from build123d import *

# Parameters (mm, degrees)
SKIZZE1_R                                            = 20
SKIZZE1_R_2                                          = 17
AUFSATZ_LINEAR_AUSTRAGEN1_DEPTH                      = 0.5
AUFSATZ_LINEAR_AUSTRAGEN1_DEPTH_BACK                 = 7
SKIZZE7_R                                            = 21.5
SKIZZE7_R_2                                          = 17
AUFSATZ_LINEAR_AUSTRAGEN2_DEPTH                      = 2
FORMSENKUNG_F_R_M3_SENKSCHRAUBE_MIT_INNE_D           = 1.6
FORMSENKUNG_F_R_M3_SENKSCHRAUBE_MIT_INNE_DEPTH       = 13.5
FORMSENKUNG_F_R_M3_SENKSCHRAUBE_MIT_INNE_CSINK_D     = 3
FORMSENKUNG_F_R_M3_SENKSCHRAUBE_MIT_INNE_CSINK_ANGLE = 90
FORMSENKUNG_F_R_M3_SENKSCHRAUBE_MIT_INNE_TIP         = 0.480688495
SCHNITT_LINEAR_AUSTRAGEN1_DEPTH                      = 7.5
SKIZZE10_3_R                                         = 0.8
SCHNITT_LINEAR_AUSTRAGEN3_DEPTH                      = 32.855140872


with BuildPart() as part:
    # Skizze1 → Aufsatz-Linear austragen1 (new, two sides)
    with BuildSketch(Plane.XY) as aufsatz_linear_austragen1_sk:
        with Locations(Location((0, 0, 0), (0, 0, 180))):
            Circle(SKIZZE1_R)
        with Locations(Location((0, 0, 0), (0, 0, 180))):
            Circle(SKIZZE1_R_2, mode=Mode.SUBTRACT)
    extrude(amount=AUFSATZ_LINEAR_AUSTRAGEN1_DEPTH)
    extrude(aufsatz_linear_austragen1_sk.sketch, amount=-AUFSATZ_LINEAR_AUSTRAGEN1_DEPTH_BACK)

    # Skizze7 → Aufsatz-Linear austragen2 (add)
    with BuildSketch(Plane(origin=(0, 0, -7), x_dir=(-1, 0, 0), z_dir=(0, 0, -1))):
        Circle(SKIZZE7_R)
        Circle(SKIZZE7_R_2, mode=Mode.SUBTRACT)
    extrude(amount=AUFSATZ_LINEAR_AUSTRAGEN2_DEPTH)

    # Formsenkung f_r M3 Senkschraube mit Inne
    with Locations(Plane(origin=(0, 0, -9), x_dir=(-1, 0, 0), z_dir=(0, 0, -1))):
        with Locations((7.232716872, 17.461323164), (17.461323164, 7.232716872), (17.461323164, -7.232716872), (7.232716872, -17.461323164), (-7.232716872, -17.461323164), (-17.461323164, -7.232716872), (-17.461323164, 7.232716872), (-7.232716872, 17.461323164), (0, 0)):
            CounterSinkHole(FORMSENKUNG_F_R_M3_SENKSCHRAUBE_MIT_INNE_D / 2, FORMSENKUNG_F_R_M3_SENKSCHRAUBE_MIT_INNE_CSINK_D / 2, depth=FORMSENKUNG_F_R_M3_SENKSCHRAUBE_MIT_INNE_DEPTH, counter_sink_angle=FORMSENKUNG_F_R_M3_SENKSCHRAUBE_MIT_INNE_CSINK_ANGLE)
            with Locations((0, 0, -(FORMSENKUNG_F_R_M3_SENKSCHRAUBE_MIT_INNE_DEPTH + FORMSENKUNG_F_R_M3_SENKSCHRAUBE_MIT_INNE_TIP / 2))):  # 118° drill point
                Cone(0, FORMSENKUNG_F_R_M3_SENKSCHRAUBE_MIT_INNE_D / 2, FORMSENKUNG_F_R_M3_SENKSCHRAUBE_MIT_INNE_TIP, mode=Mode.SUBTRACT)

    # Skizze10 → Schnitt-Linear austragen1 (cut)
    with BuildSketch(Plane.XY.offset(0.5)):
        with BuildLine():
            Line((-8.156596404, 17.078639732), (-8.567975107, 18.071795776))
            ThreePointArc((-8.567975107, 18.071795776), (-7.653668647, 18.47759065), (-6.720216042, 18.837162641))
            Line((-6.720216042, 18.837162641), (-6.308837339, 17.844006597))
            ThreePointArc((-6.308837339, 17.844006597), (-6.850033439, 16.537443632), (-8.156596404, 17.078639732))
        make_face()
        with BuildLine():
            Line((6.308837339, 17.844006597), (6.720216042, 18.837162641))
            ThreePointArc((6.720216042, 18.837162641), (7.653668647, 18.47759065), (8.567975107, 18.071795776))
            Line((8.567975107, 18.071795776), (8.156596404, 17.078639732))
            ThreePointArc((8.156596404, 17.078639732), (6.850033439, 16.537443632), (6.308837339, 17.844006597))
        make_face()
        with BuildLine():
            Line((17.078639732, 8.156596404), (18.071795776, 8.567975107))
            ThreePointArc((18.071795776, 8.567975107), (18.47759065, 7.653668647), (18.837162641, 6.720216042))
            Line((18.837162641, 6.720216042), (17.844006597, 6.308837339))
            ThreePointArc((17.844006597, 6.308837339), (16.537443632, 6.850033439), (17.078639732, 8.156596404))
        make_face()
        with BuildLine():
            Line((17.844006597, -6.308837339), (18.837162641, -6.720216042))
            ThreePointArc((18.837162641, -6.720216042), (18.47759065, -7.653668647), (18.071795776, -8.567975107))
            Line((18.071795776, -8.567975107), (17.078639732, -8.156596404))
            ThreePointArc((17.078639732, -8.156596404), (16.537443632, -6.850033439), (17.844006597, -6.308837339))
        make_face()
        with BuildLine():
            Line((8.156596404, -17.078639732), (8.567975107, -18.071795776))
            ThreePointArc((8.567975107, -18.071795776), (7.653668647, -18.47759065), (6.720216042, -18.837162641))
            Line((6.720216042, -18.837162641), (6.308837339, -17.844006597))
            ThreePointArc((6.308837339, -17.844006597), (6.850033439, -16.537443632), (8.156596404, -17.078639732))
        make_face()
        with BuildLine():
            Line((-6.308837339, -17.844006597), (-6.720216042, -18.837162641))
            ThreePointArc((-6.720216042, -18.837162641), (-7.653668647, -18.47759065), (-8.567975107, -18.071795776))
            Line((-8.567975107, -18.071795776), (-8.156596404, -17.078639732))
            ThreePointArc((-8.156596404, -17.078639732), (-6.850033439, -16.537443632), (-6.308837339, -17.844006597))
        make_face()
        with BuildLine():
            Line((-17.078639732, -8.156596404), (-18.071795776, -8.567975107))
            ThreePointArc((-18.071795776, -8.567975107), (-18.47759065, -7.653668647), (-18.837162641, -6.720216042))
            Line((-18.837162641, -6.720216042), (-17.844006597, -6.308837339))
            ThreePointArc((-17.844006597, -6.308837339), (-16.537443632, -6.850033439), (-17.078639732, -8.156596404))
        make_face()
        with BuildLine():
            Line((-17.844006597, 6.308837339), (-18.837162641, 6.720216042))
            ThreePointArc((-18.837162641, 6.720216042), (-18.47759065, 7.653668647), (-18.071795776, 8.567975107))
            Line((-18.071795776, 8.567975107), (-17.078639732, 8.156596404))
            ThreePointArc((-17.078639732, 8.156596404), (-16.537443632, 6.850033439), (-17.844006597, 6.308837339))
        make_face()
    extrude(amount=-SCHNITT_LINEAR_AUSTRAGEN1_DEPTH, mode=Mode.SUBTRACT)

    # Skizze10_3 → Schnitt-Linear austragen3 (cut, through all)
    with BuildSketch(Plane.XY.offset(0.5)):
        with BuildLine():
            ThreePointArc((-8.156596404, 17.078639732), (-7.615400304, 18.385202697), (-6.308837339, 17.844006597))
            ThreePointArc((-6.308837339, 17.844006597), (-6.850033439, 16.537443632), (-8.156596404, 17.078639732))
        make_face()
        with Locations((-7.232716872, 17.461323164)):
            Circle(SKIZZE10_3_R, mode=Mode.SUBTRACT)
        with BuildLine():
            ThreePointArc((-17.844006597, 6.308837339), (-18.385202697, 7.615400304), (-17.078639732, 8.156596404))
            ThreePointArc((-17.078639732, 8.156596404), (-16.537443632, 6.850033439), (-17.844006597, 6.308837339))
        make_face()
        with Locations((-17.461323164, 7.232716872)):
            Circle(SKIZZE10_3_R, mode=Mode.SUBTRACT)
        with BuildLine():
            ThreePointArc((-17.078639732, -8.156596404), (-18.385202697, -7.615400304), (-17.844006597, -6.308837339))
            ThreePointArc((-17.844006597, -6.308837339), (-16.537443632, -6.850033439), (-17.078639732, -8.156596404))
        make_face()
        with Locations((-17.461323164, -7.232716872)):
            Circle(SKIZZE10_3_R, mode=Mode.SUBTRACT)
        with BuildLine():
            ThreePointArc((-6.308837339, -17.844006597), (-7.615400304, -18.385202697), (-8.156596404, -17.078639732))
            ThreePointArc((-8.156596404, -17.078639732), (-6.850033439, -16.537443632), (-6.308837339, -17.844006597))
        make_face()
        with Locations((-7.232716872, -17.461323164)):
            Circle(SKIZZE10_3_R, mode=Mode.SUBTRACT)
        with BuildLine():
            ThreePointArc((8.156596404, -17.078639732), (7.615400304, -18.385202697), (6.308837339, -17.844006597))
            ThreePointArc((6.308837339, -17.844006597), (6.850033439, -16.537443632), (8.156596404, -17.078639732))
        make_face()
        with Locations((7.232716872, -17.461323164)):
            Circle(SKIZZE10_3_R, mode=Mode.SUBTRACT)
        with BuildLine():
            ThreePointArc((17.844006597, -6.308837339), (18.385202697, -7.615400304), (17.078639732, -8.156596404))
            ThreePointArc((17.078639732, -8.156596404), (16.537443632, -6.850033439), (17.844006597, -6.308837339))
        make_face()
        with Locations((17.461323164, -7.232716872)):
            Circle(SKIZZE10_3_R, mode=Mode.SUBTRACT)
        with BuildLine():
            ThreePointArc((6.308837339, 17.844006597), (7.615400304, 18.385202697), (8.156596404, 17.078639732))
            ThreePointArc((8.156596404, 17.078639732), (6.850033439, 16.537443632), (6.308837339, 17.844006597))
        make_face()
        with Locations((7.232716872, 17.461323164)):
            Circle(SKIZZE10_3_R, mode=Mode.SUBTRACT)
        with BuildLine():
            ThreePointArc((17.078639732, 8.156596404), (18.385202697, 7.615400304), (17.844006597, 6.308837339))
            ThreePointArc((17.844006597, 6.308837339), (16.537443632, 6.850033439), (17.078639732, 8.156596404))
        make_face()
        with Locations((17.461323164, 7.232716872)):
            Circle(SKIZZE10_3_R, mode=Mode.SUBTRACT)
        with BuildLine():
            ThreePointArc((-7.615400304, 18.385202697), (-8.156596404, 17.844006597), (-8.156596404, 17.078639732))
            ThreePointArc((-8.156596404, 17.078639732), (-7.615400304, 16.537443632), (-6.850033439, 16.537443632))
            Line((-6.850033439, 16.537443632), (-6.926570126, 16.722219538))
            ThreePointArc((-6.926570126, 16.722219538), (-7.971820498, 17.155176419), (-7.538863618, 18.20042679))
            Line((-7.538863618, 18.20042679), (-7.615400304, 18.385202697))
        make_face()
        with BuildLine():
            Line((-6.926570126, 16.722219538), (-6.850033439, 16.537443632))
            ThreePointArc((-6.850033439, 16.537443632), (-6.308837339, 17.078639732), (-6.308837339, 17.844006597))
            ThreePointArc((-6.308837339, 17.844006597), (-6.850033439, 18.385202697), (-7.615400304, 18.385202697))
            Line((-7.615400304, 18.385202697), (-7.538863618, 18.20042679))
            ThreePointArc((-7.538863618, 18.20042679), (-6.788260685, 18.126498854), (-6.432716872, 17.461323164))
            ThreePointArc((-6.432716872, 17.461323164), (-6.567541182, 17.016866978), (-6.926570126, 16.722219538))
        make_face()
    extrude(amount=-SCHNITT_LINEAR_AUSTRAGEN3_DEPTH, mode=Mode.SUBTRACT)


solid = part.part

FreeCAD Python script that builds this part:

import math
import FreeCAD as App
import Part
import Sketcher
Q = App.Units.Quantity

doc = App.newDocument("Part")
body = doc.addObject("PartDesign::Body", "Body")

# Sketch on XY plane
sketch1 = body.newObject("Sketcher::SketchObject", "Sketch")
sketch1.AttachmentSupport = (doc.getObject("XY_Plane"), [""])
sketch1.MapMode = "FlatFace"
sketch1.addGeometry([
    Part.Circle(App.Vector(0, 0, 0), App.Vector(0, 0, 1), 20),
    Part.Circle(App.Vector(0, 0, 0), App.Vector(0, 0, 1), 17),
], False)
sketch1.addConstraint([
    Sketcher.Constraint("Coincident", 0, 3, -1, 1),
    Sketcher.Constraint("Coincident", 1, 3, -1, 1),
    Sketcher.Constraint("Diameter", 0, Q("40 mm")),
    Sketcher.Constraint("Diameter", 1, Q("34 mm")),
])
pad1 = body.newObject("PartDesign::Pad", "Pad")
pad1.Profile = sketch1
pad1.Type = "TwoLengths"
pad1.Length = 0.5
pad1.Length2 = 7

# Sketch on XY plane
sketch2 = body.newObject("Sketcher::SketchObject", "Sketch001")
sketch2.AttachmentSupport = (doc.getObject("XY_Plane"), [""])
sketch2.MapMode = "FlatFace"
sketch2.AttachmentOffset = App.Placement(App.Vector(0, 0, -7), App.Rotation())
sketch2.addGeometry([
    Part.Circle(App.Vector(0, 0, 0), App.Vector(0, 0, 1), 22),
    Part.Circle(App.Vector(0, 0, 0), App.Vector(0, 0, 1), 17),
], False)
sketch2.addConstraint([
    Sketcher.Constraint("Coincident", 0, 3, -1, 1),
    Sketcher.Constraint("Coincident", 1, 3, -1, 1),
    Sketcher.Constraint("Diameter", 0, Q("43 mm")),
    Sketcher.Constraint("Diameter", 1, Q("34 mm")),
])
pad2 = body.newObject("PartDesign::Pad", "Pad001")
pad2.Profile = sketch2
pad2.Length = 2
pad2.Reversed = True

# Sketch on XY plane
sketch3 = body.newObject("Sketcher::SketchObject", "Sketch002")
sketch3.AttachmentSupport = (doc.getObject("XY_Plane"), [""])
sketch3.MapMode = "FlatFace"
sketch3.AttachmentOffset = App.Placement(App.Vector(0, 0, -9), App.Rotation())
sketch3.addGeometry([
    Part.Circle(App.Vector(-7.2, 17.5, 0), App.Vector(0, 0, 1), 0.8),  # 0
    Part.Circle(App.Vector(-17.5, 7.2, 0), App.Vector(0, 0, 1), 0.8),  # 1
    Part.Circle(App.Vector(-17.5, -7.2, 0), App.Vector(0, 0, 1), 0.8),  # 2
    Part.Circle(App.Vector(-7.2, -17.5, 0), App.Vector(0, 0, 1), 0.8),  # 3
    Part.Circle(App.Vector(7.2, -17.5, 0), App.Vector(0, 0, 1), 0.8),  # 4
    Part.Circle(App.Vector(17.5, -7.2, 0), App.Vector(0, 0, 1), 0.8),  # 5
    Part.Circle(App.Vector(17.5, 7.2, 0), App.Vector(0, 0, 1), 0.8),  # 6
    Part.Circle(App.Vector(7.2, 17.5, 0), App.Vector(0, 0, 1), 0.8),  # 7
    Part.Circle(App.Vector(0, 0, 0), App.Vector(0, 0, 1), 0.8),  # 8
], False)
sketch3.addConstraint([
    Sketcher.Constraint("Coincident", 8, 3, -1, 1),
    Sketcher.Constraint("Equal", 0, 1),
    Sketcher.Constraint("Equal", 1, 2),
    Sketcher.Constraint("Equal", 2, 3),
    Sketcher.Constraint("Equal", 3, 4),
    Sketcher.Constraint("Equal", 4, 5),
    Sketcher.Constraint("Equal", 5, 6),
    Sketcher.Constraint("Equal", 6, 7),
    Sketcher.Constraint("Equal", 7, 8),
    Sketcher.Constraint("Symmetric", 0, 3, 4, 3, -1, 1),
    Sketcher.Constraint("Symmetric", 1, 3, 5, 3, -1, 1),
    Sketcher.Constraint("Symmetric", 2, 3, 6, 3, -1, 1),
    Sketcher.Constraint("Symmetric", 3, 3, 7, 3, -1, 1),
    Sketcher.Constraint("Symmetric", 3, 3, 4, 3, -2),
    Sketcher.Constraint("Symmetric", 2, 3, 5, 3, -2),
    Sketcher.Constraint("Diameter", 0, Q("1.6 mm")),
    Sketcher.Constraint("DistanceY", 2, 3, 0, 3, Q("24.69404 mm")),
    Sketcher.Constraint("DistanceX", 2, 3, 4, 3, Q("24.69404 mm")),
    Sketcher.Constraint("DistanceX", 0, 3, -1, 1, Q("7.232717 mm")),
    Sketcher.Constraint("DistanceY", -1, 1, 0, 3, Q("17.461323 mm")),
])
doc.recompute()
hole = body.newObject("PartDesign::Hole", "Hole")
hole.Profile = sketch3
hole.ThreadType = "None"
hole.Diameter = 1.6
hole.DepthType = "Dimension"
hole.Depth = 13.5
hole.DrillPoint = "Angled"
hole.DrillPointAngle = 118
hole.HoleCutType = "Countersink"
hole.HoleCutDiameter = 3
hole.HoleCutCountersinkAngle = 90
hole.Reversed = True

# Sketch on XY plane
sketch4 = body.newObject("Sketcher::SketchObject", "Sketch003")
sketch4.AttachmentSupport = (doc.getObject("XY_Plane"), [""])
sketch4.MapMode = "FlatFace"
sketch4.AttachmentOffset = App.Placement(App.Vector(0, 0, 0.5), App.Rotation())
sketch4.addGeometry([
    Part.LineSegment(App.Vector(-8.6, 18.1, 0), App.Vector(-8.2, 17.1, 0)),  # 0
    Part.ArcOfCircle(Part.Circle(App.Vector(-7.2, 17.5, 0), App.Vector(0, 0, 1), 1), math.radians(-158), math.radians(23)),  # 1
    Part.LineSegment(App.Vector(-6.3, 17.8, 0), App.Vector(-6.7, 18.8, 0)),  # 2
    Part.ArcOfCircle(Part.Circle(App.Vector(0, 0, 0), App.Vector(0, 0, 1), 20), math.radians(109.63), math.radians(115.37)),  # 3
    Part.LineSegment(App.Vector(6.7, 18.8, 0), App.Vector(6.3, 17.8, 0)),  # 4
    Part.ArcOfCircle(Part.Circle(App.Vector(7.2, 17.5, 0), App.Vector(0, 0, 1), 1), math.radians(157), math.radians(338)),  # 5
    Part.LineSegment(App.Vector(8.2, 17.1, 0), App.Vector(8.6, 18.1, 0)),  # 6
    Part.ArcOfCircle(Part.Circle(App.Vector(0, 0, 0), App.Vector(0, 0, 1), 20), math.radians(64.63), math.radians(70.37)),  # 7
    Part.LineSegment(App.Vector(18.1, 8.6, 0), App.Vector(17.1, 8.2, 0)),  # 8
    Part.ArcOfCircle(Part.Circle(App.Vector(17.5, 7.2, 0), App.Vector(0, 0, 1), 1), math.radians(112), math.radians(293)),  # 9
    Part.LineSegment(App.Vector(17.8, 6.3, 0), App.Vector(18.8, 6.7, 0)),  # 10
    Part.ArcOfCircle(Part.Circle(App.Vector(0, 0, 0), App.Vector(0, 0, 1), 20), math.radians(19.63), math.radians(25.37)),  # 11
    Part.LineSegment(App.Vector(18.8, -6.7, 0), App.Vector(17.8, -6.3, 0)),  # 12
    Part.ArcOfCircle(Part.Circle(App.Vector(17.5, -7.2, 0), App.Vector(0, 0, 1), 1), math.radians(67), math.radians(248)),  # 13
    Part.LineSegment(App.Vector(17.1, -8.2, 0), App.Vector(18.1, -8.6, 0)),  # 14
    Part.ArcOfCircle(Part.Circle(App.Vector(0, 0, 0), App.Vector(0, 0, 1), 20), math.radians(-25.37), math.radians(-19.63)),  # 15
    Part.LineSegment(App.Vector(8.6, -18.1, 0), App.Vector(8.2, -17.1, 0)),  # 16
    Part.ArcOfCircle(Part.Circle(App.Vector(7.2, -17.5, 0), App.Vector(0, 0, 1), 1), math.radians(22), math.radians(203)),  # 17
    Part.LineSegment(App.Vector(6.3, -17.8, 0), App.Vector(6.7, -18.8, 0)),  # 18
    Part.ArcOfCircle(Part.Circle(App.Vector(0, 0, 0), App.Vector(0, 0, 1), 20), math.radians(-70.37), math.radians(-64.63)),  # 19
    Part.LineSegment(App.Vector(-6.7, -18.8, 0), App.Vector(-6.3, -17.8, 0)),  # 20
    Part.ArcOfCircle(Part.Circle(App.Vector(-7.2, -17.5, 0), App.Vector(0, 0, 1), 1), math.radians(-23), math.radians(158)),  # 21
    Part.LineSegment(App.Vector(-8.2, -17.1, 0), App.Vector(-8.6, -18.1, 0)),  # 22
    Part.ArcOfCircle(Part.Circle(App.Vector(0, 0, 0), App.Vector(0, 0, 1), 20), math.radians(-115.37), math.radians(-109.63)),  # 23
    Part.LineSegment(App.Vector(-18.1, -8.6, 0), App.Vector(-17.1, -8.2, 0)),  # 24
    Part.ArcOfCircle(Part.Circle(App.Vector(-17.5, -7.2, 0), App.Vector(0, 0, 1), 1), math.radians(-68), math.radians(113)),  # 25
    Part.LineSegment(App.Vector(-17.8, -6.3, 0), App.Vector(-18.8, -6.7, 0)),  # 26
    Part.ArcOfCircle(Part.Circle(App.Vector(0, 0, 0), App.Vector(0, 0, 1), 20), math.radians(-160.37), math.radians(-154.63)),  # 27
    Part.LineSegment(App.Vector(-18.8, 6.7, 0), App.Vector(-17.8, 6.3, 0)),  # 28
    Part.ArcOfCircle(Part.Circle(App.Vector(-17.5, 7.2, 0), App.Vector(0, 0, 1), 1), math.radians(-113), math.radians(68)),  # 29
    Part.LineSegment(App.Vector(-17.1, 8.2, 0), App.Vector(-18.1, 8.6, 0)),  # 30
    Part.ArcOfCircle(Part.Circle(App.Vector(0, 0, 0), App.Vector(0, 0, 1), 20), math.radians(154.63), math.radians(160.37)),  # 31
], False)
sketch4.addConstraint([
    Sketcher.Constraint("Tangent", 0, 2, 1, 1),
    Sketcher.Constraint("Tangent", 1, 2, 2, 1),
    Sketcher.Constraint("Coincident", 2, 2, 3, 1),
    Sketcher.Constraint("Coincident", 3, 2, 0, 1),
    Sketcher.Constraint("Tangent", 4, 2, 5, 1),
    Sketcher.Constraint("Tangent", 5, 2, 6, 1),
    Sketcher.Constraint("Coincident", 6, 2, 7, 1),
    Sketcher.Constraint("Coincident", 7, 2, 4, 1),
    Sketcher.Constraint("Tangent", 8, 2, 9, 1),
    Sketcher.Constraint("Tangent", 9, 2, 10, 1),
    Sketcher.Constraint("Coincident", 10, 2, 11, 1),
    Sketcher.Constraint("Coincident", 11, 2, 8, 1),
    Sketcher.Constraint("Tangent", 12, 2, 13, 1),
    Sketcher.Constraint("Tangent", 13, 2, 14, 1),
    Sketcher.Constraint("Coincident", 14, 2, 15, 1),
    Sketcher.Constraint("Coincident", 15, 2, 12, 1),
    Sketcher.Constraint("Tangent", 16, 2, 17, 1),
    Sketcher.Constraint("Tangent", 17, 2, 18, 1),
    Sketcher.Constraint("Coincident", 18, 2, 19, 1),
    Sketcher.Constraint("Coincident", 19, 2, 16, 1),
    Sketcher.Constraint("Tangent", 20, 2, 21, 1),
    Sketcher.Constraint("Tangent", 21, 2, 22, 1),
    Sketcher.Constraint("Coincident", 22, 2, 23, 1),
    Sketcher.Constraint("Coincident", 23, 2, 20, 1),
    Sketcher.Constraint("Tangent", 24, 2, 25, 1),
    Sketcher.Constraint("Tangent", 25, 2, 26, 1),
    Sketcher.Constraint("Coincident", 26, 2, 27, 1),
    Sketcher.Constraint("Coincident", 27, 2, 24, 1),
    Sketcher.Constraint("Tangent", 28, 2, 29, 1),
    Sketcher.Constraint("Tangent", 29, 2, 30, 1),
    Sketcher.Constraint("Coincident", 30, 2, 31, 1),
    Sketcher.Constraint("Coincident", 31, 2, 28, 1),
    Sketcher.Constraint("Coincident", 3, 3, -1, 1),
    Sketcher.Constraint("Coincident", 7, 3, -1, 1),
    Sketcher.Constraint("Coincident", 11, 3, -1, 1),
    Sketcher.Constraint("Coincident", 15, 3, -1, 1),
    Sketcher.Constraint("Coincident", 19, 3, -1, 1),
    Sketcher.Constraint("Coincident", 23, 3, -1, 1),
    Sketcher.Constraint("Coincident", 27, 3, -1, 1),
    Sketcher.Constraint("Coincident", 31, 3, -1, 1),
    Sketcher.Constraint("Equal", 1, 5),
    Sketcher.Constraint("Equal", 3, 7),
    Sketcher.Constraint("Equal", 5, 9),
    Sketcher.Constraint("Equal", 7, 11),
    Sketcher.Constraint("Equal", 9, 13),
    Sketcher.Constraint("Equal", 11, 15),
    Sketcher.Constraint("Equal", 13, 17),
    Sketcher.Constraint("Equal", 15, 19),
    Sketcher.Constraint("Equal", 17, 21),
    Sketcher.Constraint("Equal", 19, 23),
    Sketcher.Constraint("Equal", 21, 25),
    Sketcher.Constraint("Equal", 23, 27),
    Sketcher.Constraint("Equal", 25, 29),
    Sketcher.Constraint("Equal", 27, 31),
    Sketcher.Constraint("Symmetric", 1, 3, 17, 3, -1, 1),
    Sketcher.Constraint("Symmetric", 5, 3, 21, 3, -1, 1),
    Sketcher.Constraint("Symmetric", 9, 3, 25, 3, -1, 1),
    Sketcher.Constraint("Symmetric", 13, 3, 29, 3, -1, 1),
    Sketcher.Constraint("Symmetric", 1, 3, 5, 3, -2),
    Sketcher.Constraint("Symmetric", 13, 3, 25, 3, -2),
    Sketcher.Constraint("Parallel", 0, 2),
    Sketcher.Constraint("Parallel", 4, 6),
    Sketcher.Constraint("Perpendicular", 2, 8),
    Sketcher.Constraint("Parallel", 8, 10),
    Sketcher.Constraint("Perpendicular", 6, 12),
    Sketcher.Constraint("Parallel", 12, 14),
    Sketcher.Constraint("Perpendicular", 10, 16),
    Sketcher.Constraint("Parallel", 16, 18),
    Sketcher.Constraint("Perpendicular", 14, 20),
    Sketcher.Constraint("Parallel", 20, 22),
    Sketcher.Constraint("Perpendicular", 18, 24),
    Sketcher.Constraint("Parallel", 24, 26),
    Sketcher.Constraint("Perpendicular", 22, 28),
    Sketcher.Constraint("Parallel", 28, 30),
    Sketcher.Constraint("Horizontal", 1, 2, 4, 2),
    Sketcher.Constraint("Equal", 0, 2),
    Sketcher.Constraint("Equal", 6, 8),
    Sketcher.Constraint("Equal", 8, 10),
    Sketcher.Constraint("Radius", 1, Q("1 mm")),
    Sketcher.Constraint("Radius", 3, Q("20 mm")),
    Sketcher.Constraint("Angle", 0, Q("-67.5 deg")),
    Sketcher.Constraint("DistanceX", 1, 3, 2, 2, Q("0.512501 mm")),
])
pocket1 = body.newObject("PartDesign::Pocket", "Pocket")
pocket1.Profile = sketch4
pocket1.Length = 7.5

# Sketch on XY plane
sketch5 = body.newObject("Sketcher::SketchObject", "Sketch004")
sketch5.AttachmentSupport = (doc.getObject("XY_Plane"), [""])
sketch5.MapMode = "FlatFace"
sketch5.AttachmentOffset = App.Placement(App.Vector(0, 0, 0.5), App.Rotation())
sketch5.addGeometry([
    Part.Circle(App.Vector(-7.2, 17.5, 0), App.Vector(0, 0, 1), 1),  # 0
    Part.ArcOfCircle(Part.Circle(App.Vector(-7.2, 17.5, 0), App.Vector(0, 0, 1), 0.8), math.radians(-67), math.radians(113)),  # 1
    Part.ArcOfCircle(Part.Circle(App.Vector(-7.2, 17.5, 0), App.Vector(0, 0, 1), 0.8), math.radians(113), math.radians(293)),  # 2
    Part.Circle(App.Vector(-17.5, 7.2, 0), App.Vector(0, 0, 1), 1),  # 3
    Part.Circle(App.Vector(-17.5, 7.2, 0), App.Vector(0, 0, 1), 0.8),  # 4
    Part.Circle(App.Vector(-17.5, -7.2, 0), App.Vector(0, 0, 1), 1),  # 5
    Part.Circle(App.Vector(-17.5, -7.2, 0), App.Vector(0, 0, 1), 0.8),  # 6
    Part.Circle(App.Vector(-7.2, -17.5, 0), App.Vector(0, 0, 1), 1),  # 7
    Part.Circle(App.Vector(-7.2, -17.5, 0), App.Vector(0, 0, 1), 0.8),  # 8
    Part.Circle(App.Vector(7.2, -17.5, 0), App.Vector(0, 0, 1), 1),  # 9
    Part.Circle(App.Vector(7.2, -17.5, 0), App.Vector(0, 0, 1), 0.8),  # 10
    Part.Circle(App.Vector(17.5, -7.2, 0), App.Vector(0, 0, 1), 1),  # 11
    Part.Circle(App.Vector(17.5, -7.2, 0), App.Vector(0, 0, 1), 0.8),  # 12
    Part.Circle(App.Vector(7.2, 17.5, 0), App.Vector(0, 0, 1), 1),  # 13
    Part.Circle(App.Vector(7.2, 17.5, 0), App.Vector(0, 0, 1), 0.8),  # 14
    Part.Circle(App.Vector(17.5, 7.2, 0), App.Vector(0, 0, 1), 1),  # 15
    Part.Circle(App.Vector(17.5, 7.2, 0), App.Vector(0, 0, 1), 0.8),  # 16
], False)
sketch5.addConstraint([
    Sketcher.Constraint("Tangent", 1, 1, 2, 2),
    Sketcher.Constraint("Coincident", 2, 1, 1, 2),
    Sketcher.Constraint("Coincident", 1, 3, 0, 3),
    Sketcher.Constraint("Coincident", 4, 3, 3, 3),
    Sketcher.Constraint("Coincident", 6, 3, 5, 3),
    Sketcher.Constraint("Coincident", 8, 3, 7, 3),
    Sketcher.Constraint("Coincident", 10, 3, 9, 3),
    Sketcher.Constraint("Coincident", 12, 3, 11, 3),
    Sketcher.Constraint("Coincident", 14, 3, 13, 3),
    Sketcher.Constraint("Coincident", 16, 3, 15, 3),
    Sketcher.Constraint("Equal", 0, 3),
    Sketcher.Constraint("Equal", 2, 4),
    Sketcher.Constraint("Equal", 3, 5),
    Sketcher.Constraint("Equal", 4, 6),
    Sketcher.Constraint("Equal", 5, 7),
    Sketcher.Constraint("Equal", 6, 8),
    Sketcher.Constraint("Equal", 7, 9),
    Sketcher.Constraint("Equal", 8, 10),
    Sketcher.Constraint("Equal", 9, 11),
    Sketcher.Constraint("Equal", 10, 12),
    Sketcher.Constraint("Equal", 11, 13),
    Sketcher.Constraint("Equal", 12, 14),
    Sketcher.Constraint("Equal", 13, 15),
    Sketcher.Constraint("Equal", 14, 16),
    Sketcher.Constraint("Symmetric", 0, 3, 9, 3, -1, 1),
    Sketcher.Constraint("Symmetric", 3, 3, 11, 3, -1, 1),
    Sketcher.Constraint("Symmetric", 7, 3, 13, 3, -1, 1),
    Sketcher.Constraint("Symmetric", 5, 3, 15, 3, -1, 1),
    Sketcher.Constraint("Symmetric", 7, 3, 9, 3, -2),
    Sketcher.Constraint("Symmetric", 5, 3, 11, 3, -2),
    Sketcher.Constraint("Diameter", 0, Q("2 mm")),
    Sketcher.Constraint("Diameter", 4, Q("1.6 mm")),
    Sketcher.Constraint("DistanceX", 1, 1, -1, 1, Q("6.92657 mm")),
    Sketcher.Constraint("DistanceY", -1, 1, 1, 1, Q("16.72222 mm")),
    Sketcher.Constraint("DistanceY", 5, 3, 1, 3, Q("24.69404 mm")),
    Sketcher.Constraint("DistanceX", 5, 3, 9, 3, Q("24.69404 mm")),
    Sketcher.Constraint("DistanceX", 3, 3, 2, 1, Q("9.92246 mm")),
    Sketcher.Constraint("DistanceX", 0, 3, -1, 1, Q("7.232717 mm")),
])
pocket2 = body.newObject("PartDesign::Pocket", "Pocket001")
pocket2.Profile = sketch5
pocket2.Type = "ThroughAll"

doc.recompute()
